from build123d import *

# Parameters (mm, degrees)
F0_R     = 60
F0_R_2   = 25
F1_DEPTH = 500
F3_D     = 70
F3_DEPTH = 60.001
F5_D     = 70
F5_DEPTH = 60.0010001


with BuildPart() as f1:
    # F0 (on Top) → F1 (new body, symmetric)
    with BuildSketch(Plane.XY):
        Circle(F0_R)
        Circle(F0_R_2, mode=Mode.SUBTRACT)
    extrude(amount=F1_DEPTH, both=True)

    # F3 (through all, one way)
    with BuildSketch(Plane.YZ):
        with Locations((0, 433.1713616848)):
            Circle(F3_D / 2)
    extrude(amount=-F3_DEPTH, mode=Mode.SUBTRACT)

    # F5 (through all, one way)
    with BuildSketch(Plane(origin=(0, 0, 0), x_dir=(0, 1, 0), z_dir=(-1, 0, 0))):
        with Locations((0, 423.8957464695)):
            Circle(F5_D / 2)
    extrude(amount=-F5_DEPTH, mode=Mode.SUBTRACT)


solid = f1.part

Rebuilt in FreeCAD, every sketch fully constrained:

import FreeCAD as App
import Part
import Sketcher
Q = App.Units.Quantity

doc = App.newDocument("Part")
body = doc.addObject("PartDesign::Body", "Body")

sketch1 = body.newObject("Sketcher::SketchObject", "Sketch")
sketch1.AttachmentSupport = (doc.getObject("XY_Plane"), [""])
sketch1.MapMode = "FlatFace"
sketch1.addGeometry([
    Part.Circle(App.Vector(0, 0, 0), App.Vector(0, 0, 1), 60),
    Part.Circle(App.Vector(0, 0, 0), App.Vector(0, 0, 1), 25),
], False)
sketch1.addConstraint([
    Sketcher.Constraint("Coincident", 0, 3, -1, 1),
    Sketcher.Constraint("Coincident", 1, 3, -1, 1),
    Sketcher.Constraint("Diameter", 0, Q("120 mm")),
    Sketcher.Constraint("Diameter", 1, Q("50 mm")),
])
pad1 = body.newObject("PartDesign::Pad", "Pad")
pad1.Profile = sketch1
pad1.Length = 1000
pad1.Midplane = True

sketch2 = body.newObject("Sketcher::SketchObject", "Sketch001")
sketch2.AttachmentSupport = (doc.getObject("YZ_Plane"), [""])
sketch2.MapMode = "FlatFace"
sketch2.addGeometry(Part.Circle(App.Vector(0, 433, 0), App.Vector(0, 0, 1), 35), False)
sketch2.addConstraint([
    Sketcher.Constraint("PointOnObject", 0, 3, -2),
    Sketcher.Constraint("Diameter", 0, Q("70 mm")),
    Sketcher.Constraint("DistanceY", -1, 1, 0, 3, Q("433.171362 mm")),
])
pocket1 = body.newObject("PartDesign::Pocket", "Pocket")
pocket1.Profile = sketch2
pocket1.Type = "ThroughAll"

sketch3 = body.newObject("Sketcher::SketchObject", "Sketch002")
sketch3.AttachmentSupport = (doc.getObject("YZ_Plane"), [""])
sketch3.MapMode = "FlatFace"
sketch3.addGeometry(Part.Circle(App.Vector(0, -424, 0), App.Vector(0, 0, 1), 35), False)
sketch3.addConstraint([
    Sketcher.Constraint("PointOnObject", 0, 3, -2),
    Sketcher.Constraint("Diameter", 0, Q("70 mm")),
    Sketcher.Constraint("DistanceY", 0, 3, -1, 1, Q("423.895746 mm")),
])
pocket2 = body.newObject("PartDesign::Pocket", "Pocket001")
pocket2.Profile = sketch3
pocket2.Type = "ThroughAll"
pocket2.Reversed = True

doc.recompute()
